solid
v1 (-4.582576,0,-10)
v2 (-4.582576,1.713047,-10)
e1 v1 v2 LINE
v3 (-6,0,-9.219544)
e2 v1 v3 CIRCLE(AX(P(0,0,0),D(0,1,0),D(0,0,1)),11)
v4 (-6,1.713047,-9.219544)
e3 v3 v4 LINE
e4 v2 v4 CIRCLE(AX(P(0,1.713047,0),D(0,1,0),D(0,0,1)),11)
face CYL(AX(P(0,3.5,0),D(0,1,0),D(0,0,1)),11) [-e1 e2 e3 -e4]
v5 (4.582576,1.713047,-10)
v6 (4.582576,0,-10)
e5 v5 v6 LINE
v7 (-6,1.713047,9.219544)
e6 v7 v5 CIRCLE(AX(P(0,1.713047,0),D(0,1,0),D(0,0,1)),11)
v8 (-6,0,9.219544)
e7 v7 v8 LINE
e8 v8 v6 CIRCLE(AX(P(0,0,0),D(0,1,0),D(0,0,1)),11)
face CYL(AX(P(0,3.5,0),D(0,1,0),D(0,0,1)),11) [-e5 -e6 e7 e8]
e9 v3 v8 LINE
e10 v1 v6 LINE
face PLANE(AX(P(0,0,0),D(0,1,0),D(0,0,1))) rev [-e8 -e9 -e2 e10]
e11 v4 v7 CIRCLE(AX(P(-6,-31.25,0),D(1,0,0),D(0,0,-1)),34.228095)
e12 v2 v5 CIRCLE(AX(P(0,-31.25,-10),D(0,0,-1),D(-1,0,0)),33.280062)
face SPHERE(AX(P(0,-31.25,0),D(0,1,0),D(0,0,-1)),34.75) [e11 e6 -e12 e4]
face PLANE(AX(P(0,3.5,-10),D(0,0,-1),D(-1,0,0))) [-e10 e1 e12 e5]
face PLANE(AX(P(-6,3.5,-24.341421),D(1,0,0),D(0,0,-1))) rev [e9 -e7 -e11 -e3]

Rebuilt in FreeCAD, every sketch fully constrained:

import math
import FreeCAD as App
import Part
import Sketcher

V = App.Vector
Q = App.Units.Quantity

doc = App.newDocument("Part")
params = doc.addObject("Spreadsheet::Sheet", "Params")
for row, (alias, value) in enumerate([
    ("sketch1_height", "11 mm"),
    ("sketch1_radius", "34.75 mm"),
    ("sketch1_width", "3.5 mm"),
    ("revolution_angle", "360 deg"),
    ("sketch2_radius", "11 mm"),
], start=1):
    params.set(f"A{row}", alias)
    params.set(f"B{row}", "=" + value)
    params.setAlias(f"B{row}", alias)

body = doc.addObject("PartDesign::Body", "Body")

# Sketch on YZ plane
sketch1 = body.newObject("Sketcher::SketchObject", "Sketch")
sketch1.AttachmentSupport = (doc.getObject("YZ_Plane"), [""])
sketch1.MapMode = "FlatFace"
sketch1.addGeometry([
    Part.LineSegment(V(0, 0, 0), V(0, -11, 0)),
    Part.LineSegment(V(0, -11, 0), V(1.713047, -11, 0)),
    Part.ArcOfCircle(Part.Circle(V(-31.25, 0, 0), V(0, 0, 1), 34.75), math.radians(-18.454216), math.radians(0)),
    Part.LineSegment(V(3.5, 0, 0), V(0, 0, 0)),
], False)
sketch1.addConstraint([
    Sketcher.Constraint("Coincident", 0, 2, 1, 1),
    Sketcher.Constraint("Coincident", 1, 2, 2, 1),
    Sketcher.Constraint("Coincident", 2, 2, 3, 1),
    Sketcher.Constraint("Coincident", 3, 2, 0, 1),
    Sketcher.Constraint("Vertical", 0),
    Sketcher.Constraint("Horizontal", 1),
    Sketcher.Constraint("Horizontal", 3),
    Sketcher.Constraint("Coincident", 3, 2, -1, 1),
    Sketcher.Constraint("PointOnObject", 2, 3, -1),
    Sketcher.Constraint("DistanceY", 0, 2, 0, 1, Q("11 mm")),
    Sketcher.Constraint("Radius", 2, Q("34.75 mm")),
    Sketcher.Constraint("DistanceX", 3, 2, 3, 1, Q("3.5 mm")),
])
sketch1.setExpression("Constraints[9]", "Params.sketch1_height")
sketch1.setExpression("Constraints[10]", "Params.sketch1_radius")
sketch1.setExpression("Constraints[11]", "Params.sketch1_width")
revolution = body.newObject("PartDesign::Revolution", "Revolution")
revolution.Profile = sketch1
revolution.ReferenceAxis = (sketch1, ["H_Axis"])
revolution.setExpression("Angle", "Params.revolution_angle")

# Sketch on XZ plane
sketch2 = body.newObject("Sketcher::SketchObject", "Sketch001")
sketch2.AttachmentSupport = (doc.getObject("XZ_Plane"), [""])
sketch2.MapMode = "FlatFace"
sketch2.addGeometry([
    Part.ArcOfCircle(Part.Circle(V(0, 0, 0), V(0, 0, 1), 11), math.radians(123.055731), math.radians(236.944269)),
    Part.LineSegment(V(-6, -9.219544, 0), V(-6, 9.219544, 0)),
    Part.LineSegment(V(4.582576, -10, 0), V(-4.582576, -10, 0)),
    Part.ArcOfCircle(Part.Circle(V(0, 0, 0), V(0, 0, 1), 11), math.radians(-114.619977), math.radians(-65.380023)),
], False)
sketch2.addConstraint([
    Sketcher.Constraint("Coincident", 0, 1, 1, 2),
    Sketcher.Constraint("Coincident", 1, 1, 0, 2),
    Sketcher.Constraint("Coincident", 2, 1, 3, 2),
    Sketcher.Constraint("Coincident", 3, 1, 2, 2),
    Sketcher.Constraint("Vertical", 1),
    Sketcher.Constraint("Horizontal", 2),
    Sketcher.Constraint("Coincident", 0, 3, -1, 1),
    Sketcher.Constraint("Coincident", 3, 3, -1, 1),
    Sketcher.Constraint("Equal", 0, 3),
    Sketcher.Constraint("Radius", 0, Q("11 mm")),
    Sketcher.Constraint("DistanceX", 0, 1, -1, 1, Q("6 mm")),
    Sketcher.Constraint("DistanceY", 2, 1, -1, 1, Q("10 mm")),
])
sketch2.setExpression("Constraints[9]", "Params.sketch2_radius")
pocket1 = body.newObject("PartDesign::Pocket", "Pocket")
pocket1.Profile = sketch2
pocket1.Type = "ThroughAll"

doc.recompute()
